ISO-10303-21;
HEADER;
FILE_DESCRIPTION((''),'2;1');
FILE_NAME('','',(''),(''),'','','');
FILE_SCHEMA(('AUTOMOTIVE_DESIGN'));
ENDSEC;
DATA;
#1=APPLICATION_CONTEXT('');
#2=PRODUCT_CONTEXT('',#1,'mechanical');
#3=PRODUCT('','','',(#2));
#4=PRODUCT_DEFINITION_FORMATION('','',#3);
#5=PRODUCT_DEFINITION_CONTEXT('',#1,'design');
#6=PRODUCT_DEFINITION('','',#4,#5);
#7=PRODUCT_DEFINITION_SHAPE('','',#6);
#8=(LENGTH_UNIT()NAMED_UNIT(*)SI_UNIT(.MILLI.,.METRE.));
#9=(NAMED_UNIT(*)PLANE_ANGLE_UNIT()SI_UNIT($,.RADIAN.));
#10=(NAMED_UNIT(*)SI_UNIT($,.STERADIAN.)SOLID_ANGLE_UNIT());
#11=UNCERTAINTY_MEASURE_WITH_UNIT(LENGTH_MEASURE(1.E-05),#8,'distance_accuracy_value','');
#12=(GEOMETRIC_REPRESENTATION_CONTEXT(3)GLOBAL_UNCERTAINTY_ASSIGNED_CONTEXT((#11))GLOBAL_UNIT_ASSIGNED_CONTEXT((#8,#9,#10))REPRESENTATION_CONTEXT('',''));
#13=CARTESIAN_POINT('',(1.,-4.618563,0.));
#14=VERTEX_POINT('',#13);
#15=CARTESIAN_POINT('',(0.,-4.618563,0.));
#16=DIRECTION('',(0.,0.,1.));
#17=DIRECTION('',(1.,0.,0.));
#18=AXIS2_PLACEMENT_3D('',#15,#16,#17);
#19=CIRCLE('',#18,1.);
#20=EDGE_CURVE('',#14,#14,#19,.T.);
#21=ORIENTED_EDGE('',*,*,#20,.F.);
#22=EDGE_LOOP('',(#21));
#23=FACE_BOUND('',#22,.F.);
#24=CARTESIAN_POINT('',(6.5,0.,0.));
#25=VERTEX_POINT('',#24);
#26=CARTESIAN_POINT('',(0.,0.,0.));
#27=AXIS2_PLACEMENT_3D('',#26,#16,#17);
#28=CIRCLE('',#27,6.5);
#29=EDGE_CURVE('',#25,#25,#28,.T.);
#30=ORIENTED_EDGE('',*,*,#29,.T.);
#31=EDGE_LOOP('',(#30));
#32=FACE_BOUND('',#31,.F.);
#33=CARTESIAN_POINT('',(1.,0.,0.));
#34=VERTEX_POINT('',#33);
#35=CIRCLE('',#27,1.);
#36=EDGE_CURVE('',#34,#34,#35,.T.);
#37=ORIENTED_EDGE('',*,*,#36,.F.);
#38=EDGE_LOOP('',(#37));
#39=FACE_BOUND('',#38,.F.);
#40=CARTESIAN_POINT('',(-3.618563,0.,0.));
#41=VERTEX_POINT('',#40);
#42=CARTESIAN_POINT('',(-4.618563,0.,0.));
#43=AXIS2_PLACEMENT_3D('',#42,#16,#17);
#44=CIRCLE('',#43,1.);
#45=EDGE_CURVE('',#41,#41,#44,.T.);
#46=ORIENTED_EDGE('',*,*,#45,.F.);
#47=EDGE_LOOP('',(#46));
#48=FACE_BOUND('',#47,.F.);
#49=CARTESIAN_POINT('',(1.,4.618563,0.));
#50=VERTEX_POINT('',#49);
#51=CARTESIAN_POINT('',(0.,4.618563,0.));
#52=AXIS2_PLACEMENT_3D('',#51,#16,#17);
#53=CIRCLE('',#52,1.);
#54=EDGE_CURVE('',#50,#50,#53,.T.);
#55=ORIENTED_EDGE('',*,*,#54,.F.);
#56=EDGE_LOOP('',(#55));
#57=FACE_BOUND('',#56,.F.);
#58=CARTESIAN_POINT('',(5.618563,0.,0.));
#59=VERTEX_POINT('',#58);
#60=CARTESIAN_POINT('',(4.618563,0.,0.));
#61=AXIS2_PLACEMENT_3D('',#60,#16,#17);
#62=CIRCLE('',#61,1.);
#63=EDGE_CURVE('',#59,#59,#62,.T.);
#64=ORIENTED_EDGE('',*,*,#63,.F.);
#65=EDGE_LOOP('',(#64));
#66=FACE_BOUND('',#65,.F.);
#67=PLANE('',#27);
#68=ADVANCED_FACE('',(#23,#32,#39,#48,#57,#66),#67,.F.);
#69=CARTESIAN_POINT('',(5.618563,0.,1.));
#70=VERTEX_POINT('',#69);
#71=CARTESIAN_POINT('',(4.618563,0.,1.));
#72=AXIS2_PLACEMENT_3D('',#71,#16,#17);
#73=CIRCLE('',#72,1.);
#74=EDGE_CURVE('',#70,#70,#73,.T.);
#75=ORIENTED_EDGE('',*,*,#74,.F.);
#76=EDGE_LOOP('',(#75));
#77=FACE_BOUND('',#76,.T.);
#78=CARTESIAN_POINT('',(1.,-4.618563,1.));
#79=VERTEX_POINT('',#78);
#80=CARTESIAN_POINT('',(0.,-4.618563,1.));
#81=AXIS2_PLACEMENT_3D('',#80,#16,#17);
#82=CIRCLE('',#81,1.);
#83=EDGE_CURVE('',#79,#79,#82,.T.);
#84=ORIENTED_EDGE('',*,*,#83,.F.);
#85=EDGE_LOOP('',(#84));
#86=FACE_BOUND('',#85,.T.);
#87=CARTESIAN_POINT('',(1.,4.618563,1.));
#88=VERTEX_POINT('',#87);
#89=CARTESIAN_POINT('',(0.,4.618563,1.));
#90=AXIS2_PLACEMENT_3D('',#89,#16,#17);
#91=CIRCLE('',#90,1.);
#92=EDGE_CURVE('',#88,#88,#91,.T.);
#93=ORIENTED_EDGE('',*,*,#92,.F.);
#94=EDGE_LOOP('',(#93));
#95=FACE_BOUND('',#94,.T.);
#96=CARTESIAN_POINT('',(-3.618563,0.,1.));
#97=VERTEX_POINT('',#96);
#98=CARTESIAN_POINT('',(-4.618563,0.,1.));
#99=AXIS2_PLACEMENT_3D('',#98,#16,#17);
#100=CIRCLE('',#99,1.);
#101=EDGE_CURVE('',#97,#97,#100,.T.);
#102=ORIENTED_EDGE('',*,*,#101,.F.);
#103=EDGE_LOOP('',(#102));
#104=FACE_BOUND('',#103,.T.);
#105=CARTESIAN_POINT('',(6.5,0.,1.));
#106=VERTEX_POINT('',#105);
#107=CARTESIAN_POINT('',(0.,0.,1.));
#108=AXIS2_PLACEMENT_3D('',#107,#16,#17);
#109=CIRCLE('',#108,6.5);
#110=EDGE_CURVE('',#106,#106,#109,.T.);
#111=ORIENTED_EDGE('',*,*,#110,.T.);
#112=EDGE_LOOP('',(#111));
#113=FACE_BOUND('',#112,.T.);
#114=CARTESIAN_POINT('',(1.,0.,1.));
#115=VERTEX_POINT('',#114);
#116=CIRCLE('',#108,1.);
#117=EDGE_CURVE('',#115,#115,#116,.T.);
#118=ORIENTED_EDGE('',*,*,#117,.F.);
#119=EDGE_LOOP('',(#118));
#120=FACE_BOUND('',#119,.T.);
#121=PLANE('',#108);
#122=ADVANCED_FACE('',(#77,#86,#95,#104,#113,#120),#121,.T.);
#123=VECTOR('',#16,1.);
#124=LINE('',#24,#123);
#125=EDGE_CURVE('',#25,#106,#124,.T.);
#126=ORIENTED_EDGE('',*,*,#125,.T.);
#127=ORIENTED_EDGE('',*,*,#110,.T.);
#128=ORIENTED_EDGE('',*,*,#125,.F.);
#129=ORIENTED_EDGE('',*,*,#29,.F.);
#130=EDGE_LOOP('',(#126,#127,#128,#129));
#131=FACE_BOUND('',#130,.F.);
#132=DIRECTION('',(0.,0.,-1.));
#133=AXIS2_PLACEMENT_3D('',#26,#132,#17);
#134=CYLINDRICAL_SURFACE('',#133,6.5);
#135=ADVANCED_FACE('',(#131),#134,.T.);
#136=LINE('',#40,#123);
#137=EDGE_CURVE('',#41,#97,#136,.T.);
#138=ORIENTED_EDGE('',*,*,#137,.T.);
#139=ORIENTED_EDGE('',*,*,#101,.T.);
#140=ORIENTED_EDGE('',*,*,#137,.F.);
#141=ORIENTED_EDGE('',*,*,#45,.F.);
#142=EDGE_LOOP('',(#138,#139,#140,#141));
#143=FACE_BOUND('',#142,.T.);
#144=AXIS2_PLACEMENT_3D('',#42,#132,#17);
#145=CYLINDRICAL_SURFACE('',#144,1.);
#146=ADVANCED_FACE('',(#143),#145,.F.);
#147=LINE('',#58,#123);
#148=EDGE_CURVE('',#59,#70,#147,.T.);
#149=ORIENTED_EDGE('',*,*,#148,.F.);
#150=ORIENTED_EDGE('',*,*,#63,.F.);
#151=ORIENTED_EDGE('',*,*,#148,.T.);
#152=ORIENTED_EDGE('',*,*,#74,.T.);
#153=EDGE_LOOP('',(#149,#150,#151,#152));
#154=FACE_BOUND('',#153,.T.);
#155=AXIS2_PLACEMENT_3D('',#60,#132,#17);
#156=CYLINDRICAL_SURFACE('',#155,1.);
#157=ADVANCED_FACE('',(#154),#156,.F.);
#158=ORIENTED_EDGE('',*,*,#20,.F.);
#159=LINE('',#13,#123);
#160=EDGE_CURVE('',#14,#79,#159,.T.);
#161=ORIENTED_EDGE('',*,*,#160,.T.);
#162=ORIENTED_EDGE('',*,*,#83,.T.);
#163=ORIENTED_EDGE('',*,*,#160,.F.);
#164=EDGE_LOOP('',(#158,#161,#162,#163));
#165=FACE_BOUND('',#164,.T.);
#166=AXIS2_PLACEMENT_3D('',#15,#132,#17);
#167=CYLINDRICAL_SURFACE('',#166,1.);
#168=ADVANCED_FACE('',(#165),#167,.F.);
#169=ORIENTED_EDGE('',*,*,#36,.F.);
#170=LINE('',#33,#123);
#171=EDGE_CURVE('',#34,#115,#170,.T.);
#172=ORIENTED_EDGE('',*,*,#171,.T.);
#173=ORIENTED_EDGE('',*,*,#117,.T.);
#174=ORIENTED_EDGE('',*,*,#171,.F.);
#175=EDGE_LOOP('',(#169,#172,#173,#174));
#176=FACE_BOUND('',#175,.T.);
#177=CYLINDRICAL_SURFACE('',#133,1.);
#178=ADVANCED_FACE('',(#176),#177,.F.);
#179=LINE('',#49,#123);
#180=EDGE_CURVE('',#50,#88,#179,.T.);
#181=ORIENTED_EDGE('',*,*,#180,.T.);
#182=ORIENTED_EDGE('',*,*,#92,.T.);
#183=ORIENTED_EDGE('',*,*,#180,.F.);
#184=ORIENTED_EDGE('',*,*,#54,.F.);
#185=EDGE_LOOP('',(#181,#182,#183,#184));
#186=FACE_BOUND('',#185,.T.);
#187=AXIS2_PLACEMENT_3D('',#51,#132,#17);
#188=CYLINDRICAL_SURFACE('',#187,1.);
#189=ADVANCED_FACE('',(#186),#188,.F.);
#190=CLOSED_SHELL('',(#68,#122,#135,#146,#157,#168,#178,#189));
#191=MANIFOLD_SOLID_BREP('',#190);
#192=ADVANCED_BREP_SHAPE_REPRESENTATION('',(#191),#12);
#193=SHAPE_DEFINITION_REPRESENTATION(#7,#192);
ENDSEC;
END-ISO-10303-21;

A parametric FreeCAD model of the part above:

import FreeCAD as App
import Part
import Sketcher

V = App.Vector

doc = App.newDocument("Part")
body = doc.addObject("PartDesign::Body", "Body")

# Sketch on XY plane
sketch1 = body.newObject("Sketcher::SketchObject", "Sketch")
sketch1.AttachmentSupport = (doc.getObject("XY_Plane"), [""])
sketch1.MapMode = "FlatFace"
sketch1.addGeometry([
    Part.Circle(V(0, 0, 0), V(0, 0, 1), 6.5),  # 0
    Part.Circle(V(0, -4.6, 0), V(0, 0, 1), 1),  # 1
    Part.Circle(V(-4.6, 0, 0), V(0, 0, 1), 1),  # 2
    Part.Circle(V(0, 0, 0), V(0, 0, 1), 1),  # 3
    Part.Circle(V(4.6, 0, 0), V(0, 0, 1), 1),  # 4
    Part.Circle(V(0, 4.6, 0), V(0, 0, 1), 1),  # 5
], False)
sketch1.addConstraint([
    Sketcher.Constraint("Coincident", 0, 3, -1, 1),
    Sketcher.Constraint("Coincident", 3, 3, -1, 1),
    Sketcher.Constraint("Equal", 1, 2),
    Sketcher.Constraint("Equal", 2, 3),
    Sketcher.Constraint("Equal", 3, 4),
    Sketcher.Constraint("Equal", 4, 5),
    Sketcher.Constraint("Symmetric", 2, 3, 4, 3, -1, 1),
    Sketcher.Constraint("Symmetric", 1, 3, 5, 3, -1, 1),
    Sketcher.Constraint("PointOnObject", 1, 3, -2),
    Sketcher.Constraint("PointOnObject", 2, 3, -1),
    Sketcher.Constraint("Diameter", 0, 13.0),
    Sketcher.Constraint("Diameter", 1, 2.0),
    Sketcher.Constraint("DistanceY", 1, 3, -1, 1, 4.618563),
    Sketcher.Constraint("DistanceX", 2, 3, -1, 1, 4.618563),
])
pad1 = body.newObject("PartDesign::Pad", "Pad")
pad1.Profile = sketch1
pad1.Length = 1

doc.recompute()
